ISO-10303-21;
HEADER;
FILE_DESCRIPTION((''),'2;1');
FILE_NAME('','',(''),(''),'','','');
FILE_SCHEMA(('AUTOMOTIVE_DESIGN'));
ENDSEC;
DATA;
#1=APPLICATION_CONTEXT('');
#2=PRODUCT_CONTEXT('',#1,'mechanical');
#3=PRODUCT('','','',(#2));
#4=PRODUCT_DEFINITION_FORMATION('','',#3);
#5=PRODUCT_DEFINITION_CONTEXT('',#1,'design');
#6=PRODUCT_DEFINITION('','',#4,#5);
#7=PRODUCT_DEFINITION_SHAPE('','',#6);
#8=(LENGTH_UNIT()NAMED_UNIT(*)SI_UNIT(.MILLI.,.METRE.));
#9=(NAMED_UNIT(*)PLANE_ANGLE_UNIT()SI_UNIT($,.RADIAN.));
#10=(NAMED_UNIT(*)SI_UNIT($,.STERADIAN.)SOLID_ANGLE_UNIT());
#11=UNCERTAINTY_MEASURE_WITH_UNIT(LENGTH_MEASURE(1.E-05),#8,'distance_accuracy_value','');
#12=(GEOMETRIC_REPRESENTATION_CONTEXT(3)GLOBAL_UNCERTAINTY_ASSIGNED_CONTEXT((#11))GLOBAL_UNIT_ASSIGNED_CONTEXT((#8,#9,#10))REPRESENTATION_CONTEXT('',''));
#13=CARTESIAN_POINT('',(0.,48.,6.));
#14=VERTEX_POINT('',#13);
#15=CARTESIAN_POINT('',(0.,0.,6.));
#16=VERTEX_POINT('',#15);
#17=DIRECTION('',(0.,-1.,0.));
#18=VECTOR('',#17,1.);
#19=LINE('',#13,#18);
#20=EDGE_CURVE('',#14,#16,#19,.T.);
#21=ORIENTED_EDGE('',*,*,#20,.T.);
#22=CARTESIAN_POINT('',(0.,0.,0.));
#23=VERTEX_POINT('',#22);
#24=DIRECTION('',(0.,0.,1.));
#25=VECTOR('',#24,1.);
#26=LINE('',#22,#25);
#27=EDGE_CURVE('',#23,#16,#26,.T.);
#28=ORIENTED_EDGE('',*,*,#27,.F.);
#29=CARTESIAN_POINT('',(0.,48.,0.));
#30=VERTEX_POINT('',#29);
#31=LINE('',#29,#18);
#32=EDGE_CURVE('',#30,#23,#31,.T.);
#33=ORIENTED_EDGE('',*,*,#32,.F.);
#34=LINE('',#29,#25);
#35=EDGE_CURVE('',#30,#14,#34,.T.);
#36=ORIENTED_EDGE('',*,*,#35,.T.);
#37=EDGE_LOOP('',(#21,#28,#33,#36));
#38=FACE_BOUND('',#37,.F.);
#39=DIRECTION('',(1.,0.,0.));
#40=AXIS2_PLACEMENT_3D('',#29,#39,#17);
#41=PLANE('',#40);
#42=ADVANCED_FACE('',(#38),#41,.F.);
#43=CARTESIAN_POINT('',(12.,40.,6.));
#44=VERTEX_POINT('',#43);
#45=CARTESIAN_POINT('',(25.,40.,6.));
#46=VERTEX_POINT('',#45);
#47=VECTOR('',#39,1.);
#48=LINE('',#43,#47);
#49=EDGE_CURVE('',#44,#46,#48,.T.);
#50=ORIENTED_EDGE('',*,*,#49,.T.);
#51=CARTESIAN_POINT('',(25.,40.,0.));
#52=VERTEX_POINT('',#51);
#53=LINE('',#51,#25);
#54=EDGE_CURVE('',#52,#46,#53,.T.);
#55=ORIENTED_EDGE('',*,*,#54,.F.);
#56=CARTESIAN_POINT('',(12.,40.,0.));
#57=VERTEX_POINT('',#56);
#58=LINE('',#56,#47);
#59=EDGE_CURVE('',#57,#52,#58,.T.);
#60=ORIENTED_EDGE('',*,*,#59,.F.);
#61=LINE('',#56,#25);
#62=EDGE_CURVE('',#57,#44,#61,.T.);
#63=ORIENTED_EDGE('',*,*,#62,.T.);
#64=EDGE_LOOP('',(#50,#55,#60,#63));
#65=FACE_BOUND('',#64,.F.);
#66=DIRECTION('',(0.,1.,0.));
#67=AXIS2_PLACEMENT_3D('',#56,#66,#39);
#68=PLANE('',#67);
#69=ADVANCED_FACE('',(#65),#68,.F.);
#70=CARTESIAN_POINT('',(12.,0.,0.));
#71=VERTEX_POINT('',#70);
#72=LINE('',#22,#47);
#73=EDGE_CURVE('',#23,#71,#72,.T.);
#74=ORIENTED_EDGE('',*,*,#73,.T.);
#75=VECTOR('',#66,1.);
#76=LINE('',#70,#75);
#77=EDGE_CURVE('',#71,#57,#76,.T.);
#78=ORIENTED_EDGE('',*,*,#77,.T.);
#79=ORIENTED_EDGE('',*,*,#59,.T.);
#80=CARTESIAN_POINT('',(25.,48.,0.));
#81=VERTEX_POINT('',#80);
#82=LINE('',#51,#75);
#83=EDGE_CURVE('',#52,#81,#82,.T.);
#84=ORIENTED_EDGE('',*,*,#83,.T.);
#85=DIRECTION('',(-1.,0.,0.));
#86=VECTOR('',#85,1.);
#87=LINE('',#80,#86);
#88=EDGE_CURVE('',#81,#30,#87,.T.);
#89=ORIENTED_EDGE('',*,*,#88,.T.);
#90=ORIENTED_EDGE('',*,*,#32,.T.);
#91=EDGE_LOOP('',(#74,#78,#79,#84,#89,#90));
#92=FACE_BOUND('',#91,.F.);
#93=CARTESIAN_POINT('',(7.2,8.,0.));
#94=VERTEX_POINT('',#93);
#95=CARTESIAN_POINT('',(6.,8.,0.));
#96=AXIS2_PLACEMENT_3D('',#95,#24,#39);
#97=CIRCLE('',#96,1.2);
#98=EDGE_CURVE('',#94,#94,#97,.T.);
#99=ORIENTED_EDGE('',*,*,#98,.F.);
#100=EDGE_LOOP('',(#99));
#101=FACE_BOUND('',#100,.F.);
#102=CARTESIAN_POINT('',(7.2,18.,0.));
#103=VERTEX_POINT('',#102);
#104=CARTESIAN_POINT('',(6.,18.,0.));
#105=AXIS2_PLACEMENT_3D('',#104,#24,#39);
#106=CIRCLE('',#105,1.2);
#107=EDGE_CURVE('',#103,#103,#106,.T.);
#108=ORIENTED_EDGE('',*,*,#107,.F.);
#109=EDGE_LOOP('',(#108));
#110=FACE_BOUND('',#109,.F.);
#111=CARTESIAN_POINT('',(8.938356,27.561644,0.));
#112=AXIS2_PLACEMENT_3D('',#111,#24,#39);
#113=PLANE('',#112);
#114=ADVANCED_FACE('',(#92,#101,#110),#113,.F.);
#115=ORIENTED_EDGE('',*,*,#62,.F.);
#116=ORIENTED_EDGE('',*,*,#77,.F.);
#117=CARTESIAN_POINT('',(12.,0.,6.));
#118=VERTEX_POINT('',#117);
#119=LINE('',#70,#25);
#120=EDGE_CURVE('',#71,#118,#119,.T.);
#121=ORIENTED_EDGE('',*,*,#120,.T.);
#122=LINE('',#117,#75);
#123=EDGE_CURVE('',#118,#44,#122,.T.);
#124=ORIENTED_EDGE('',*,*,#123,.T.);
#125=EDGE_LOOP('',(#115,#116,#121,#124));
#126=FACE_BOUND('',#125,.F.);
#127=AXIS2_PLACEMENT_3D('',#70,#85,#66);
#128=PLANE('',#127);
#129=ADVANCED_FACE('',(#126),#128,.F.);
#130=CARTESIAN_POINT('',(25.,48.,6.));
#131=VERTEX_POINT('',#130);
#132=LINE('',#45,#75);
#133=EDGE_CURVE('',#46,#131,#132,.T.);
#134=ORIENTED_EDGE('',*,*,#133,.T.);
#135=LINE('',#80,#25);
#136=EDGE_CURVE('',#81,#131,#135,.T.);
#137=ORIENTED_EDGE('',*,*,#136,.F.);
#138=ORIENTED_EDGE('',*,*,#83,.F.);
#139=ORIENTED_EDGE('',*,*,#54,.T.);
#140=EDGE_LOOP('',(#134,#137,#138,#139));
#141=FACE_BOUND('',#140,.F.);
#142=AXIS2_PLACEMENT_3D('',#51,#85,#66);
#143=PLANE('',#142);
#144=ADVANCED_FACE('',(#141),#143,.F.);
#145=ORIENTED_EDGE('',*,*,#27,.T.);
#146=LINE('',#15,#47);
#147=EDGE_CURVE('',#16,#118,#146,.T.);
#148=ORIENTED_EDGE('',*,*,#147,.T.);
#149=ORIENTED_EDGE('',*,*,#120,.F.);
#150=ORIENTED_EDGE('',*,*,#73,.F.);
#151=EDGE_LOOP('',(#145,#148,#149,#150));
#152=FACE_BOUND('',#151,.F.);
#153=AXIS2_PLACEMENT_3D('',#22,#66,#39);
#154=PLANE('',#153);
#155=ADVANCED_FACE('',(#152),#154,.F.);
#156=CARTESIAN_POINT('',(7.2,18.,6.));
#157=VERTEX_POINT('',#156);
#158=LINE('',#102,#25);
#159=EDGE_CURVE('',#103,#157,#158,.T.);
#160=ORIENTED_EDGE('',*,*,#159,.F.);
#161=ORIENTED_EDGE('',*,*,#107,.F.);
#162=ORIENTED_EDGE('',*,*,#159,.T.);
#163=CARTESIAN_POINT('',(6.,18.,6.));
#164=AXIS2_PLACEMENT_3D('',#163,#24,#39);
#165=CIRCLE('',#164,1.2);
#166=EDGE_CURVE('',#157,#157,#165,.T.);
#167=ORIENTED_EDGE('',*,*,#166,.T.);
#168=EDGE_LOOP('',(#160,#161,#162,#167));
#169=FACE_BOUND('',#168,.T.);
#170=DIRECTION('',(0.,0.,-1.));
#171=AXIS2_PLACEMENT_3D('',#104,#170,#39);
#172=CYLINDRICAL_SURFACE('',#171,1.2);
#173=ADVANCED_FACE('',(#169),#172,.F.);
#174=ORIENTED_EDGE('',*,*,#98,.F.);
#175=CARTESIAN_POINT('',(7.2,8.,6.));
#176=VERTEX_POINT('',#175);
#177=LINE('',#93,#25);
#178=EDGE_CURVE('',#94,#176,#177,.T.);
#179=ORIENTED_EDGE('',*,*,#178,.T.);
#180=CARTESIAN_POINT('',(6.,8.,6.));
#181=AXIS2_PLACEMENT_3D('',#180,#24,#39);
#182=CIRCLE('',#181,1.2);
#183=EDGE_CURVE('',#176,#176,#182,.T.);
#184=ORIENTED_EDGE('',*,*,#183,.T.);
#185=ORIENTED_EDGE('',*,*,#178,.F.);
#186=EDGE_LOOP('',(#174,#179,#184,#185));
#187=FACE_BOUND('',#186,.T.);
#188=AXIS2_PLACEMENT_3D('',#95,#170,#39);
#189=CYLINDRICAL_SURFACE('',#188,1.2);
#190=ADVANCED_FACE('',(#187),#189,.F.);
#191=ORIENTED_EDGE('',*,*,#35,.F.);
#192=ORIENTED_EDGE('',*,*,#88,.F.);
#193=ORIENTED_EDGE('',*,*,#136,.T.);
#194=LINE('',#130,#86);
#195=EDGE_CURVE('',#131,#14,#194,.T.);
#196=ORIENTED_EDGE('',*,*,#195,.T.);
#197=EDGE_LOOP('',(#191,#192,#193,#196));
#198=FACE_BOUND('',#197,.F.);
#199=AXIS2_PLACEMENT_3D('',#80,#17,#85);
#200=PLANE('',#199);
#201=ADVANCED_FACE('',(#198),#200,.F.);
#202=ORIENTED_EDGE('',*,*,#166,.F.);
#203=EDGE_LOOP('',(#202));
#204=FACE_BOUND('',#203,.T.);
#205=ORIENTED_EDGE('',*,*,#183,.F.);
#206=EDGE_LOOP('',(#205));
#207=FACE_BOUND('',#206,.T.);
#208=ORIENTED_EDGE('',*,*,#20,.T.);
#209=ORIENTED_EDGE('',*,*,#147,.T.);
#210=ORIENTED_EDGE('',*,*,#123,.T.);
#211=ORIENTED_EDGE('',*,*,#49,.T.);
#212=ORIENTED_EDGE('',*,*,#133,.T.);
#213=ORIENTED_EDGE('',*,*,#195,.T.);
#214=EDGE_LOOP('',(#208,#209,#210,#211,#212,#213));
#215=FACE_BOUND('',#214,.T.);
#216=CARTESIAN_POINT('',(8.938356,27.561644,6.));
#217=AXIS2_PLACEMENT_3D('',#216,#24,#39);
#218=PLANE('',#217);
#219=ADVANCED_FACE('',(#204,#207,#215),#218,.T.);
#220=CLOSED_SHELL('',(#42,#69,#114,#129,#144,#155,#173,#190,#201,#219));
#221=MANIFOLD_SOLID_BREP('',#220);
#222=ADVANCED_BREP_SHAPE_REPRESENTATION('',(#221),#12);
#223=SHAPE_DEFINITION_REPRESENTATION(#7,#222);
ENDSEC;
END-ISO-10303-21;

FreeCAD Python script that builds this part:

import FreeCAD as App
import Part
import Sketcher

doc = App.newDocument("Part")
params = doc.addObject("Spreadsheet::Sheet", "Params")
for row, (alias, value) in enumerate([
    ("sketch1_diameter", "2.4 mm"),
    ("sketch1_width", "12 mm"),
    ("sketch1_width2", "13 mm"),
    ("sketch1_height", "48 mm"),
    ("sketch1_height2", "40 mm"),
    ("pad1_length", "6 mm"),
], start=1):
    params.set(f"A{row}", alias)
    params.set(f"B{row}", "=" + value)
    params.setAlias(f"B{row}", alias)

body = doc.addObject("PartDesign::Body", "Body")

# Sketch on XY plane
sketch1 = body.newObject("Sketcher::SketchObject", "Sketch")
sketch1.AttachmentSupport = (doc.getObject("XY_Plane"), [""])
sketch1.MapMode = "FlatFace"
sketch1.addGeometry(Part.LineSegment(App.Vector(0, 48, 0), App.Vector(0, 0, 0)), False)
sketch1.addGeometry(Part.LineSegment(App.Vector(0, 0, 0), App.Vector(12, 0, 0)), False)
sketch1.addGeometry(Part.LineSegment(App.Vector(12, 0, 0), App.Vector(12, 40, 0)), False)
sketch1.addGeometry(Part.LineSegment(App.Vector(12, 40, 0), App.Vector(25, 40, 0)), False)
sketch1.addGeometry(Part.LineSegment(App.Vector(25, 40, 0), App.Vector(25, 48, 0)), False)
sketch1.addGeometry(Part.LineSegment(App.Vector(25, 48, 0), App.Vector(0, 48, 0)), False)
sketch1.addGeometry(Part.Circle(App.Vector(6, 8, 0), App.Vector(0, 0, 1), 1.2), False)
sketch1.addGeometry(Part.Circle(App.Vector(6, 18, 0), App.Vector(0, 0, 1), 1.2), False)
sketch1.addConstraint(Sketcher.Constraint("Coincident", 0, 2, 1, 1))
sketch1.addConstraint(Sketcher.Constraint("Coincident", 1, 2, 2, 1))
sketch1.addConstraint(Sketcher.Constraint("Coincident", 2, 2, 3, 1))
sketch1.addConstraint(Sketcher.Constraint("Coincident", 3, 2, 4, 1))
sketch1.addConstraint(Sketcher.Constraint("Coincident", 4, 2, 5, 1))
sketch1.addConstraint(Sketcher.Constraint("Coincident", 5, 2, 0, 1))
sketch1.addConstraint(Sketcher.Constraint("Vertical", 0))
sketch1.addConstraint(Sketcher.Constraint("Horizontal", 1))
sketch1.addConstraint(Sketcher.Constraint("Vertical", 2))
sketch1.addConstraint(Sketcher.Constraint("Horizontal", 3))
sketch1.addConstraint(Sketcher.Constraint("Vertical", 4))
sketch1.addConstraint(Sketcher.Constraint("Horizontal", 5))
sketch1.addConstraint(Sketcher.Constraint("Coincident", 0, 2, -1, 1))
sketch1.addConstraint(Sketcher.Constraint("Equal", 6, 7))
sketch1.addConstraint(Sketcher.Constraint("Vertical", 6, 3, 7, 3))
sketch1.addConstraint(Sketcher.Constraint("Diameter", 6, 2.4))
sketch1.addConstraint(Sketcher.Constraint("DistanceX", 1, 1, 1, 2, 12.0))
sketch1.addConstraint(Sketcher.Constraint("DistanceX", 3, 1, 3, 2, 13.0))
sketch1.addConstraint(Sketcher.Constraint("DistanceY", 0, 2, 0, 1, 48.0))
sketch1.addConstraint(Sketcher.Constraint("DistanceY", 2, 1, 2, 2, 40.0))
sketch1.addConstraint(Sketcher.Constraint("DistanceX", -1, 1, 6, 3, 6.0))
sketch1.addConstraint(Sketcher.Constraint("DistanceY", -1, 1, 6, 3, 8.0))
sketch1.addConstraint(Sketcher.Constraint("DistanceY", -1, 1, 7, 3, 18.0))
sketch1.setExpression("Constraints[15]", "Params.sketch1_diameter")
sketch1.setExpression("Constraints[16]", "Params.sketch1_width")
sketch1.setExpression("Constraints[17]", "Params.sketch1_width2")
sketch1.setExpression("Constraints[18]", "Params.sketch1_height")
sketch1.setExpression("Constraints[19]", "Params.sketch1_height2")
pad1 = body.newObject("PartDesign::Pad", "Pad")
pad1.Profile = sketch1
pad1.setExpression("Length", "Params.pad1_length")

doc.recompute()
